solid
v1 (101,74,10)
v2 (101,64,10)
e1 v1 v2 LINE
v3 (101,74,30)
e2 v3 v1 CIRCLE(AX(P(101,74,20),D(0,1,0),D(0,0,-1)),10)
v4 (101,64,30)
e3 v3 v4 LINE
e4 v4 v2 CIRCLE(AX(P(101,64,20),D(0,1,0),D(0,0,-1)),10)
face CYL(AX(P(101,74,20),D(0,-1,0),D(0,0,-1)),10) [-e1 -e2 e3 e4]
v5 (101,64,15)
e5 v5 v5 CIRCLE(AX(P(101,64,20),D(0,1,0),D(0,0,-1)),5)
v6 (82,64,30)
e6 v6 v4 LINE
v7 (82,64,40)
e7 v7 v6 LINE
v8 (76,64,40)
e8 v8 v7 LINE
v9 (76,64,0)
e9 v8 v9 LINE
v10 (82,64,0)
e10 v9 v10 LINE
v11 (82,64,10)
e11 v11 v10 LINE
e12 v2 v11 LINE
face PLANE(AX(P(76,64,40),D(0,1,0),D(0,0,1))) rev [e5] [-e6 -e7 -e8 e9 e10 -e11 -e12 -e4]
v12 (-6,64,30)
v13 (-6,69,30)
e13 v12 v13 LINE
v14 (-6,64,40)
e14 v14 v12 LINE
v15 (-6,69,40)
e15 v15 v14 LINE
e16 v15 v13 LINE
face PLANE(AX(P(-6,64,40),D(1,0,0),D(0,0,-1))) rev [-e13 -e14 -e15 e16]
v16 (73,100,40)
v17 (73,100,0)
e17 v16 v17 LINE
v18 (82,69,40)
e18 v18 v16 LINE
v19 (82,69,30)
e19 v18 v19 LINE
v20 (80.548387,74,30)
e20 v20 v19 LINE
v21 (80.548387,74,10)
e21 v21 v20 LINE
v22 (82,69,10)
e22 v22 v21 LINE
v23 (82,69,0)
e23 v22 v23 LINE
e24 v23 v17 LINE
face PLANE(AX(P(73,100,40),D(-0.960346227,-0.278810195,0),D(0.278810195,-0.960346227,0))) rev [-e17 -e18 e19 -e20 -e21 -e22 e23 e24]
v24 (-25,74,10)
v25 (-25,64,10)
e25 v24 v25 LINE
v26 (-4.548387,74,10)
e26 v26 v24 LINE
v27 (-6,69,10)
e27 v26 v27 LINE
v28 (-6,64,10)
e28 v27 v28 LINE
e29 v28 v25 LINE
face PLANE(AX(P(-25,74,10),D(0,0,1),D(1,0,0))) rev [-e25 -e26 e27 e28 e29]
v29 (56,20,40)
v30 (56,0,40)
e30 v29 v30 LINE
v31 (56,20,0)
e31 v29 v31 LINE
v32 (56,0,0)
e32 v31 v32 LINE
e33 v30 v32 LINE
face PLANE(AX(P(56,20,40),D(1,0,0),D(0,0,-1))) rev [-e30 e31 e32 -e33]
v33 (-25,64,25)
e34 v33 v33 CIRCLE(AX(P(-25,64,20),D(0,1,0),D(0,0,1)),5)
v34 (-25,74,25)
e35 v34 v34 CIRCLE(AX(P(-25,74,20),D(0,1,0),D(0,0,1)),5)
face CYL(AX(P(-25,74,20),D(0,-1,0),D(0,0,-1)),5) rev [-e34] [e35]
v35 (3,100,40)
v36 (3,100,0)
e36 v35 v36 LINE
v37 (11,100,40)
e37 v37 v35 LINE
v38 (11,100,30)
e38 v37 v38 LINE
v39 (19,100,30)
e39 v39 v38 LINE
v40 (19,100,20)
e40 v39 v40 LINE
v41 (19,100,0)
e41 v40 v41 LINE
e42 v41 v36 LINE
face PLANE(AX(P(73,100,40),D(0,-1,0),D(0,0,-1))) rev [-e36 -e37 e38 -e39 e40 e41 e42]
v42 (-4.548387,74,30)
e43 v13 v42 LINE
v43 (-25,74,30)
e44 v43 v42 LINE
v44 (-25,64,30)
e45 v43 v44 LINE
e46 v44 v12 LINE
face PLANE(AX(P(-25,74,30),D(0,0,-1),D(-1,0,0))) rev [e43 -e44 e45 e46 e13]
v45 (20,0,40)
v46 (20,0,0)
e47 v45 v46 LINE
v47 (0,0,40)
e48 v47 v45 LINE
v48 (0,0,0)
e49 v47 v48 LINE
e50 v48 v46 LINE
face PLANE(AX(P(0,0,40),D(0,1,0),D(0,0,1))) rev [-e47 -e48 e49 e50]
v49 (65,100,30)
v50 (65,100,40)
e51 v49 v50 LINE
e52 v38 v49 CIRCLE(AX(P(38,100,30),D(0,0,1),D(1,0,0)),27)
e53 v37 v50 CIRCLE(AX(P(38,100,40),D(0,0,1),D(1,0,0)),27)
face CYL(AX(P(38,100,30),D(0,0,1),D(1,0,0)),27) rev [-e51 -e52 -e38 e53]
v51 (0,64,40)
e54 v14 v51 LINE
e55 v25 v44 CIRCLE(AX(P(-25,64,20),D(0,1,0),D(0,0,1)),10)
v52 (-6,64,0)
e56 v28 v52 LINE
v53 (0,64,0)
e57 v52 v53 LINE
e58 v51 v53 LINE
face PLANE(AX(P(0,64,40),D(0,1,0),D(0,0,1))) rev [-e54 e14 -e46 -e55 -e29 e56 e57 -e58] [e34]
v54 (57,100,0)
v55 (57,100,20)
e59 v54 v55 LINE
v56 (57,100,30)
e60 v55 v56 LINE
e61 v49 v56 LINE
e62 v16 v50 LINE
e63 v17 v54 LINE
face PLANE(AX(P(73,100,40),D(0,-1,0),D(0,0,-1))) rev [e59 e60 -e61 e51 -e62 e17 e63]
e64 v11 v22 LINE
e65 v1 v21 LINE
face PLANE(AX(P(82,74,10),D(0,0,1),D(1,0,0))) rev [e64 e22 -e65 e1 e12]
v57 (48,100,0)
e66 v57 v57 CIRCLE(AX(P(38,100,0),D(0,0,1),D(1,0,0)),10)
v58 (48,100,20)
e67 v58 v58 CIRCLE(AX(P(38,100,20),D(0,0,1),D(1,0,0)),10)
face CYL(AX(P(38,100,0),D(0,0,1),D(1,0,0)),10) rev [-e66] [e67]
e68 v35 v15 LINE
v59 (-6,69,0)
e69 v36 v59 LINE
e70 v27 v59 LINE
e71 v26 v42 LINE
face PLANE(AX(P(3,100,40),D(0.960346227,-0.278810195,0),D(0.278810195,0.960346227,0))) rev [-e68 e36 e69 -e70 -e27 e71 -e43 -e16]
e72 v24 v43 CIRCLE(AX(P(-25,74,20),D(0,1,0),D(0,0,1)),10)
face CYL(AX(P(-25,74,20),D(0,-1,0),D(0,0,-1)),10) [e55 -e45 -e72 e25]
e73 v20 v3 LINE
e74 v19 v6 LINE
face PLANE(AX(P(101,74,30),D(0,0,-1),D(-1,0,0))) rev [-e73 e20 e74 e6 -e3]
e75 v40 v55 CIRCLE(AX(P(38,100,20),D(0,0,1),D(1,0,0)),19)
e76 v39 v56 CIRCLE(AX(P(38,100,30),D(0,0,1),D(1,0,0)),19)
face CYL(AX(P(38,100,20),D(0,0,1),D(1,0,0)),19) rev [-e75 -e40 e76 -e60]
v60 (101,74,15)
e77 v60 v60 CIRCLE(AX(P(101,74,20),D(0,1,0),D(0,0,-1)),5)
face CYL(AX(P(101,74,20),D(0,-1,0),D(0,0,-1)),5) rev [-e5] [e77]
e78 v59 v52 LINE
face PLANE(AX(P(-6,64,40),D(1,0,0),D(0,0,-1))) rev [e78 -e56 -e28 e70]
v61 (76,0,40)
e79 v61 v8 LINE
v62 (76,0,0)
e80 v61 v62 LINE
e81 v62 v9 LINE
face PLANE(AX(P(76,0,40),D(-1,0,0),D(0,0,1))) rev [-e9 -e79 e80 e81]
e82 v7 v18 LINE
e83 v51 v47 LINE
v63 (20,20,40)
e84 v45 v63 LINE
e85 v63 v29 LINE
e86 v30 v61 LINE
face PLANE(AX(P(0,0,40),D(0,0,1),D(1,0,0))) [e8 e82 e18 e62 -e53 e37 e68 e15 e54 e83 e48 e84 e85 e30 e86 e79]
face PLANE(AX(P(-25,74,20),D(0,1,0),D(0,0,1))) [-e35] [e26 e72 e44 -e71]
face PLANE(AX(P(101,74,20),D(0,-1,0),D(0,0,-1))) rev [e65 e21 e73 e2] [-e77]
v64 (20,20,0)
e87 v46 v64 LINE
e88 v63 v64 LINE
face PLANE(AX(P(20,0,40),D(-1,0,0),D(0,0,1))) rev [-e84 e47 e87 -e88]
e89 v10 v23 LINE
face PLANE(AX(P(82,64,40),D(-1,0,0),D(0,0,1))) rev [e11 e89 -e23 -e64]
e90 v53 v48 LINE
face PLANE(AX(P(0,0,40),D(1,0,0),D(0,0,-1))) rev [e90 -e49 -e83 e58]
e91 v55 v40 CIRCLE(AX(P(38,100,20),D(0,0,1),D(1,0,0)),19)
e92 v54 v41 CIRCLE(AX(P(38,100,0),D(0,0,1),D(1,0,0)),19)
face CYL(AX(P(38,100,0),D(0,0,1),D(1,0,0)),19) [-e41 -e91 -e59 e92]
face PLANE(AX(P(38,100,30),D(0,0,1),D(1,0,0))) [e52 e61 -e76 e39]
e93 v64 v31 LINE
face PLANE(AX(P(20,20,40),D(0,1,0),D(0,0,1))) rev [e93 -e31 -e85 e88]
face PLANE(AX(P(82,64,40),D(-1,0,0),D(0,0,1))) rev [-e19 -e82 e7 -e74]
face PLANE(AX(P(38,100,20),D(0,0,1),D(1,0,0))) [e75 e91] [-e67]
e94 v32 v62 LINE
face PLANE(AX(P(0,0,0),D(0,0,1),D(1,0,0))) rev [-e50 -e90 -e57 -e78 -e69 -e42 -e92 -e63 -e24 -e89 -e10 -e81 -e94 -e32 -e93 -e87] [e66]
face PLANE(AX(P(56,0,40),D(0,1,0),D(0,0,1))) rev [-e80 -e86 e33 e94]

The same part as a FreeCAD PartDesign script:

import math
import FreeCAD as App
import Part
import Sketcher

V = App.Vector

doc = App.newDocument("Part")
params = doc.addObject("Spreadsheet::Sheet", "Params")
for row, (alias, value) in enumerate([
    ("sketch1_width", "20 mm"),
    ("sketch1_width2", "36 mm"),
    ("sketch1_width3", "6 mm"),
    ("sketch1_width4", "70 mm"),
    ("sketch1_height", "64 mm"),
    ("pad1_length", "40 mm"),
    ("sketch2_diameter", "54 mm"),
    ("pocket1_length", "10 mm"),
    ("sketch3_diameter", "38 mm"),
    ("pocket2_length", "10 mm"),
    ("sketch4_diameter", "38 mm"),
    ("pad2_length", "20 mm"),
    ("sketch5_diameter", "20 mm"),
    ("pocket3_length", "20 mm"),
    ("sketch6_diameter", "10 mm"),
    ("sketch6_radius", "10 mm"),
    ("pad3_length", "10 mm"),
], start=1):
    params.set(f"A{row}", alias)
    params.set(f"B{row}", "=" + value)
    params.setAlias(f"B{row}", alias)

body = doc.addObject("PartDesign::Body", "Body")

# Sketch on XY plane
sketch1 = body.newObject("Sketcher::SketchObject", "Sketch")
sketch1.AttachmentSupport = (doc.getObject("XY_Plane"), [""])
sketch1.MapMode = "FlatFace"
sketch1.addGeometry([
    Part.LineSegment(V(0, 64, 0), V(0, 0, 0)),  # 0
    Part.LineSegment(V(0, 0, 0), V(20, 0, 0)),  # 1
    Part.LineSegment(V(20, 0, 0), V(20, 20, 0)),  # 2
    Part.LineSegment(V(20, 20, 0), V(56, 20, 0)),  # 3
    Part.LineSegment(V(56, 20, 0), V(56, 0, 0)),  # 4
    Part.LineSegment(V(56, 0, 0), V(76, 0, 0)),  # 5
    Part.LineSegment(V(76, 0, 0), V(76, 64, 0)),  # 6
    Part.LineSegment(V(76, 64, 0), V(82, 64, 0)),  # 7
    Part.LineSegment(V(82, 64, 0), V(82, 69, 0)),  # 8
    Part.LineSegment(V(82, 69, 0), V(73, 100, 0)),  # 9
    Part.LineSegment(V(73, 100, 0), V(3, 100, 0)),  # 10
    Part.LineSegment(V(3, 100, 0), V(-6, 69, 0)),  # 11
    Part.LineSegment(V(-6, 69, 0), V(-6, 64, 0)),  # 12
    Part.LineSegment(V(-6, 64, 0), V(0, 64, 0)),  # 13
], False)
sketch1.addConstraint([
    Sketcher.Constraint("Coincident", 0, 2, 1, 1),
    Sketcher.Constraint("Coincident", 1, 2, 2, 1),
    Sketcher.Constraint("Coincident", 2, 2, 3, 1),
    Sketcher.Constraint("Coincident", 3, 2, 4, 1),
    Sketcher.Constraint("Coincident", 4, 2, 5, 1),
    Sketcher.Constraint("Coincident", 5, 2, 6, 1),
    Sketcher.Constraint("Coincident", 6, 2, 7, 1),
    Sketcher.Constraint("Coincident", 7, 2, 8, 1),
    Sketcher.Constraint("Coincident", 8, 2, 9, 1),
    Sketcher.Constraint("Coincident", 9, 2, 10, 1),
    Sketcher.Constraint("Coincident", 10, 2, 11, 1),
    Sketcher.Constraint("Coincident", 11, 2, 12, 1),
    Sketcher.Constraint("Coincident", 12, 2, 13, 1),
    Sketcher.Constraint("Coincident", 13, 2, 0, 1),
    Sketcher.Constraint("Vertical", 0),
    Sketcher.Constraint("Horizontal", 1),
    Sketcher.Constraint("Vertical", 2),
    Sketcher.Constraint("Horizontal", 3),
    Sketcher.Constraint("Vertical", 4),
    Sketcher.Constraint("Horizontal", 5),
    Sketcher.Constraint("Vertical", 6),
    Sketcher.Constraint("Horizontal", 7),
    Sketcher.Constraint("Vertical", 8),
    Sketcher.Constraint("Horizontal", 10),
    Sketcher.Constraint("Vertical", 12),
    Sketcher.Constraint("Horizontal", 13),
    Sketcher.Constraint("Coincident", 0, 2, -1, 1),
    Sketcher.Constraint("PointOnObject", 4, 2, -1),
    Sketcher.Constraint("Horizontal", 8, 2, 11, 2),
    Sketcher.Constraint("Horizontal", 7, 2, 12, 2),
    Sketcher.Constraint("Equal", 1, 5),
    Sketcher.Constraint("Equal", 7, 13),
    Sketcher.Constraint("Equal", 5, 2),
    Sketcher.Constraint("Equal", 9, 11),
    Sketcher.Constraint("DistanceX", 1, 1, 1, 2, 20.0),
    Sketcher.Constraint("DistanceX", 3, 1, 3, 2, 36.0),
    Sketcher.Constraint("DistanceX", 7, 1, 7, 2, 6.0),
    Sketcher.Constraint("DistanceX", 10, 2, 10, 1, 70.0),
    Sketcher.Constraint("DistanceY", 0, 2, 0, 1, 64.0),
    Sketcher.Constraint("DistanceY", 8, 1, 8, 2, 5.0),
    Sketcher.Constraint("DistanceY", -1, 1, 9, 2, 100.0),
])
sketch1.setExpression("Constraints[34]", "Params.sketch1_width")
sketch1.setExpression("Constraints[35]", "Params.sketch1_width2")
sketch1.setExpression("Constraints[36]", "Params.sketch1_width3")
sketch1.setExpression("Constraints[37]", "Params.sketch1_width4")
sketch1.setExpression("Constraints[38]", "Params.sketch1_height")
pad1 = body.newObject("PartDesign::Pad", "Pad")
pad1.Profile = sketch1
pad1.setExpression("Length", "Params.pad1_length")

# Sketch on XY plane
sketch2 = body.newObject("Sketcher::SketchObject", "Sketch001")
sketch2.AttachmentSupport = (doc.getObject("XY_Plane"), [""])
sketch2.MapMode = "FlatFace"
sketch2.AttachmentOffset = App.Placement(V(0, 0, 40), App.Rotation())
sketch2.addGeometry(Part.Circle(V(38, 100, 0), V(0, 0, 1), 27), False)
sketch2.addConstraint([
    Sketcher.Constraint("Diameter", 0, 54.0),
    Sketcher.Constraint("DistanceX", -1, 1, 0, 3, 38.0),
    Sketcher.Constraint("DistanceY", -1, 1, 0, 3, 100.0),
])
sketch2.setExpression("Constraints[0]", "Params.sketch2_diameter")
pocket1 = body.newObject("PartDesign::Pocket", "Pocket")
pocket1.Profile = sketch2
pocket1.setExpression("Length", "Params.pocket1_length")

# Sketch on XY plane
sketch3 = body.newObject("Sketcher::SketchObject", "Sketch002")
sketch3.AttachmentSupport = (doc.getObject("XY_Plane"), [""])
sketch3.MapMode = "FlatFace"
sketch3.AttachmentOffset = App.Placement(V(0, 0, 30), App.Rotation())
sketch3.addGeometry(Part.Circle(V(38, 100, 0), V(0, 0, 1), 19), False)
sketch3.addConstraint([
    Sketcher.Constraint("Diameter", 0, 38.0),
    Sketcher.Constraint("DistanceX", -1, 1, 0, 3, 38.0),
    Sketcher.Constraint("DistanceY", -1, 1, 0, 3, 100.0),
])
sketch3.setExpression("Constraints[0]", "Params.sketch3_diameter")
pocket2 = body.newObject("PartDesign::Pocket", "Pocket001")
pocket2.Profile = sketch3
pocket2.setExpression("Length", "Params.pocket2_length")

# Sketch on XY plane
sketch4 = body.newObject("Sketcher::SketchObject", "Sketch003")
sketch4.AttachmentSupport = (doc.getObject("XY_Plane"), [""])
sketch4.MapMode = "FlatFace"
sketch4.AttachmentOffset = App.Placement(V(0, 0, 20), App.Rotation())
sketch4.addGeometry(Part.Circle(V(38, 100, 0), V(0, 0, 1), 19), False)
sketch4.addConstraint([
    Sketcher.Constraint("Diameter", 0, 38.0),
    Sketcher.Constraint("DistanceX", -1, 1, 0, 3, 38.0),
    Sketcher.Constraint("DistanceY", -1, 1, 0, 3, 100.0),
])
sketch4.setExpression("Constraints[0]", "Params.sketch4_diameter")
pad2 = body.newObject("PartDesign::Pad", "Pad001")
pad2.Profile = sketch4
pad2.setExpression("Length", "Params.pad2_length")
pad2.Reversed = True

# Sketch on XY plane
sketch5 = body.newObject("Sketcher::SketchObject", "Sketch004")
sketch5.AttachmentSupport = (doc.getObject("XY_Plane"), [""])
sketch5.MapMode = "FlatFace"
sketch5.AttachmentOffset = App.Placement(V(0, 0, 20), App.Rotation())
sketch5.addGeometry(Part.Circle(V(38, 100, 0), V(0, 0, 1), 10), False)
sketch5.addConstraint([
    Sketcher.Constraint("Diameter", 0, 20.0),
    Sketcher.Constraint("DistanceX", -1, 1, 0, 3, 38.0),
    Sketcher.Constraint("DistanceY", -1, 1, 0, 3, 100.0),
])
sketch5.setExpression("Constraints[0]", "Params.sketch5_diameter")
pocket3 = body.newObject("PartDesign::Pocket", "Pocket002")
pocket3.Profile = sketch5
pocket3.setExpression("Length", "Params.pocket3_length")

# Sketch on XZ plane
sketch6 = body.newObject("Sketcher::SketchObject", "Sketch005")
sketch6.AttachmentSupport = (doc.getObject("XZ_Plane"), [""])
sketch6.MapMode = "FlatFace"
sketch6.AttachmentOffset = App.Placement(V(0, 0, -64), App.Rotation())
sketch6.addGeometry([
    Part.LineSegment(V(78, 10, 0), V(78, 30, 0)),  # 0
    Part.LineSegment(V(78, 30, 0), V(101, 30, 0)),  # 1
    Part.ArcOfCircle(Part.Circle(V(101, 20, 0), V(0, 0, 1), 10), math.radians(-90), math.radians(90)),  # 2
    Part.LineSegment(V(101, 10, 0), V(78, 10, 0)),  # 3
    Part.Circle(V(101, 20, 0), V(0, 0, 1), 5),  # 4
    Part.LineSegment(V(-2, 30, 0), V(-2, 10, 0)),  # 5
    Part.LineSegment(V(-2, 10, 0), V(-25, 10, 0)),  # 6
    Part.ArcOfCircle(Part.Circle(V(-25, 20, 0), V(0, 0, 1), 10), math.radians(90), math.radians(270)),  # 7
    Part.LineSegment(V(-25, 30, 0), V(-2, 30, 0)),  # 8
    Part.Circle(V(-25, 20, 0), V(0, 0, 1), 5),  # 9
], False)
sketch6.addConstraint([
    Sketcher.Constraint("Coincident", 0, 2, 1, 1),
    Sketcher.Constraint("Tangent", 1, 2, 2, 2),
    Sketcher.Constraint("Tangent", 2, 1, 3, 1),
    Sketcher.Constraint("Coincident", 3, 2, 0, 1),
    Sketcher.Constraint("Coincident", 5, 2, 6, 1),
    Sketcher.Constraint("Tangent", 6, 2, 7, 2),
    Sketcher.Constraint("Tangent", 7, 1, 8, 1),
    Sketcher.Constraint("Coincident", 8, 2, 5, 1),
    Sketcher.Constraint("Vertical", 0),
    Sketcher.Constraint("Horizontal", 1),
    Sketcher.Constraint("Horizontal", 3),
    Sketcher.Constraint("Vertical", 5),
    Sketcher.Constraint("Horizontal", 6),
    Sketcher.Constraint("Horizontal", 8),
    Sketcher.Constraint("Coincident", 4, 3, 2, 3),
    Sketcher.Constraint("Coincident", 9, 3, 7, 3),
    Sketcher.Constraint("Equal", 2, 7),
    Sketcher.Constraint("Equal", 4, 9),
    Sketcher.Constraint("Horizontal", 4, 3, 7, 3),
    Sketcher.Constraint("Diameter", 4, 10.0),
    Sketcher.Constraint("Radius", 2, 10.0),
    Sketcher.Constraint("DistanceX", -1, 1, 2, 3, 101.0),
    Sketcher.Constraint("DistanceY", -1, 1, 2, 3, 20.0),
    Sketcher.Constraint("DistanceX", 7, 3, -1, 1, 25.0),
    Sketcher.Constraint("DistanceX", 1, 1, 1, 2, 23.332031),
    Sketcher.Constraint("DistanceX", 6, 2, 6, 1, 22.610077),
])
sketch6.setExpression("Constraints[19]", "Params.sketch6_diameter")
sketch6.setExpression("Constraints[20]", "Params.sketch6_radius")
pad3 = body.newObject("PartDesign::Pad", "Pad002")
pad3.Profile = sketch6
pad3.setExpression("Length", "Params.pad3_length")
pad3.Reversed = True

doc.recompute()
